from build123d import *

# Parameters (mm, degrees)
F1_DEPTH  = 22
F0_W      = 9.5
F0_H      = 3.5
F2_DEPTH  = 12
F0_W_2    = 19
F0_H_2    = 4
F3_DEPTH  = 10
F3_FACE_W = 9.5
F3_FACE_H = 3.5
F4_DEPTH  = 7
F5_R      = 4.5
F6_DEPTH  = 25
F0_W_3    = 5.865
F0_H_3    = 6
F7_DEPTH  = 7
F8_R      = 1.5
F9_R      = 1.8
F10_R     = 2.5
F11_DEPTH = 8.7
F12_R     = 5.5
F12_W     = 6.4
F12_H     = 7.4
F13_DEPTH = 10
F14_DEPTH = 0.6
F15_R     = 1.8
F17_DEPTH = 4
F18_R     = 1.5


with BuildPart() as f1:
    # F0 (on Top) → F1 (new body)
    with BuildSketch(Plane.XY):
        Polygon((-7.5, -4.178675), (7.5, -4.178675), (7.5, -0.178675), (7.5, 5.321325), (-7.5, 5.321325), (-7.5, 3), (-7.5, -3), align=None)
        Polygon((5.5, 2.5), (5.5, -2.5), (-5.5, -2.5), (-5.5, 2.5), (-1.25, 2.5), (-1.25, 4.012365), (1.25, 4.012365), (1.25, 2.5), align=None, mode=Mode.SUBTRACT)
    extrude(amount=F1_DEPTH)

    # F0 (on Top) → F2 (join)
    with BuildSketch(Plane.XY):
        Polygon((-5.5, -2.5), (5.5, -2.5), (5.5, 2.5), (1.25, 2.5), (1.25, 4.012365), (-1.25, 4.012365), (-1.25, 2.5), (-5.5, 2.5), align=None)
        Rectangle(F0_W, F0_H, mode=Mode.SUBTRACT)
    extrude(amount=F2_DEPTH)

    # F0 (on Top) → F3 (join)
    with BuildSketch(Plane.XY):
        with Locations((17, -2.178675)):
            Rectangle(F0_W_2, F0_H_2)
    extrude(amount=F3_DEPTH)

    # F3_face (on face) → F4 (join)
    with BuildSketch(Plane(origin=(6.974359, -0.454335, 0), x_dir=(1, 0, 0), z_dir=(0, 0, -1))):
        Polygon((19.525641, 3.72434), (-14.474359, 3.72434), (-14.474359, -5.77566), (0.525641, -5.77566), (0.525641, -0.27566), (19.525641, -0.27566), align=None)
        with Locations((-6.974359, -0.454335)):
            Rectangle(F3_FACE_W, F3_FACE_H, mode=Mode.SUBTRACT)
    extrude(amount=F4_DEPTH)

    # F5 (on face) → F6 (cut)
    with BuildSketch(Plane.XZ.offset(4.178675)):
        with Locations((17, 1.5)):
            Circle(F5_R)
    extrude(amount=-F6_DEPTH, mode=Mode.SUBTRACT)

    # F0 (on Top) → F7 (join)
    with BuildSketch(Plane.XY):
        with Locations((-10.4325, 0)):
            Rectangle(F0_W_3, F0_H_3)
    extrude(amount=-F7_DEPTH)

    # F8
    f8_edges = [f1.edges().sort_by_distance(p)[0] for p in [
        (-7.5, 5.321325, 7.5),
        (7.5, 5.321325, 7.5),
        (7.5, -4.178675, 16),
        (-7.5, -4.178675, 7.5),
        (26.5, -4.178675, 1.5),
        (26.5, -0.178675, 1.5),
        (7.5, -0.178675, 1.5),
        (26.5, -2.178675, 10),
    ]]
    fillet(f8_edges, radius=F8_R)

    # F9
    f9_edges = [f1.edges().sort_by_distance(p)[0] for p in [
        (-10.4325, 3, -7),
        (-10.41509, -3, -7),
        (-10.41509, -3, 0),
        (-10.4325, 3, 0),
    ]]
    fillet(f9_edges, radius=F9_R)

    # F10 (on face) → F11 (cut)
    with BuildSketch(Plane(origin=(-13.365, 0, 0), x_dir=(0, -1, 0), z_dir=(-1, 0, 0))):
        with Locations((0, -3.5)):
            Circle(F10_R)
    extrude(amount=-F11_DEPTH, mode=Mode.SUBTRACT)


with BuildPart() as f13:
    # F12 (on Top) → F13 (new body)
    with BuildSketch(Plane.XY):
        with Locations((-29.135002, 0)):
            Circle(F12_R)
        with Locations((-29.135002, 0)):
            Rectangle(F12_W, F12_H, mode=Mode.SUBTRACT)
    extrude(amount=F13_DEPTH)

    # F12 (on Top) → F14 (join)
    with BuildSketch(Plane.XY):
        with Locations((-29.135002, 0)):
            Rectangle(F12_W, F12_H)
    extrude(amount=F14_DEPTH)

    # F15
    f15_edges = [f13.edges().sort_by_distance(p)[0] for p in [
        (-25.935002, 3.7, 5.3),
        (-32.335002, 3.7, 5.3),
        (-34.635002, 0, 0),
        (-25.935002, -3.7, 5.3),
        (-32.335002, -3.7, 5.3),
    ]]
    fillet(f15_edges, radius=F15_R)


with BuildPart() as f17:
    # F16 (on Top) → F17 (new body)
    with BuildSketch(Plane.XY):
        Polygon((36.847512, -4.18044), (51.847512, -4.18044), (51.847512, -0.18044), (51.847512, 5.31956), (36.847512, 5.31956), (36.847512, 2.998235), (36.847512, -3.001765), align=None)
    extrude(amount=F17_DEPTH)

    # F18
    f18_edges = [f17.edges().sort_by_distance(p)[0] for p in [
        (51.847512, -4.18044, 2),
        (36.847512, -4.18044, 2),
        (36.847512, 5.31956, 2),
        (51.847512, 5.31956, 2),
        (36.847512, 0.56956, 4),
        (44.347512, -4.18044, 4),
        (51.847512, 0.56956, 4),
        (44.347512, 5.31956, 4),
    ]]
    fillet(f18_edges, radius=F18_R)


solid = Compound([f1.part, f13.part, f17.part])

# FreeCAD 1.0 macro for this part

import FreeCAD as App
import Part
import Sketcher


def edges_at(feature, points):
    """Names of the edges that pass closest to the given points."""
    edges = feature.Shape.Edges
    near = lambda p: min(range(len(edges)), key=lambda i: edges[i].distToShape(Part.Vertex(*p))[0])
    return sorted({f"Edge{near(p) + 1}" for p in points})


def add_polygon(sketch, points):
    """Adds a closed chain of lines whose ends are joined by coincident constraints."""
    first, n = sketch.GeometryCount, len(points)
    for a, b in zip(points, points[1:] + points[:1]):
        sketch.addGeometry(Part.LineSegment(App.Vector(*a, 0), App.Vector(*b, 0)), False)
    for i in range(n):
        sketch.addConstraint(Sketcher.Constraint("Coincident", first + i, 2, first + (i + 1) % n, 1))

doc = App.newDocument("Part")
params = doc.addObject("Spreadsheet::Sheet", "Params")
for row, (alias, value) in enumerate([
    ("sketch1_width", "15 mm"),
    ("sketch1_width2", "11 mm"),
    ("sketch1_height", "5 mm"),
    ("sketch1_width3", "2.5 mm"),
    ("sketch1_height2", "9.5 mm"),
    ("pad1_length", "22 mm"),
    ("sketch2_width", "11 mm"),
    ("sketch2_height", "5 mm"),
    ("sketch2_width2", "2.5 mm"),
    ("sketch2_width3", "9.5 mm"),
    ("sketch2_height2", "3.5 mm"),
    ("pad2_length", "12 mm"),
    ("sketch3_width", "19 mm"),
    ("sketch3_height", "4 mm"),
    ("pad3_length", "10 mm"),
    ("sketch4_width", "34 mm"),
    ("sketch4_width2", "15 mm"),
    ("sketch4_height", "4 mm"),
    ("sketch4_width3", "9.5 mm"),
    ("sketch4_height2", "3.5 mm"),
    ("pad4_length", "7 mm"),
    ("sketch5_diameter", "9 mm"),
    ("pocket1_length", "25 mm"),
    ("sketch6_height", "6 mm"),
    ("pad5_length", "7 mm"),
    ("fillet_radius", "1.5 mm"),
    ("fillet2_radius", "1.8 mm"),
    ("sketch7_diameter", "5 mm"),
    ("pocket2_length", "8.7 mm"),
    ("sketch8_diameter", "11 mm"),
    ("sketch8_width", "6.4 mm"),
    ("sketch8_height", "7.4 mm"),
    ("pad6_length", "10 mm"),
    ("sketch9_width", "6.4 mm"),
    ("sketch9_height", "7.4 mm"),
    ("pad7_length", "0.6 mm"),
    ("fillet3_radius", "1.8 mm"),
    ("sketch10_width", "15 mm"),
    ("sketch10_height", "9.5 mm"),
    ("pad8_length", "4 mm"),
    ("fillet4_radius", "1.5 mm"),
], start=1):
    params.set(f"A{row}", alias)
    params.set(f"B{row}", "=" + value)
    params.setAlias(f"B{row}", alias)

body = doc.addObject("PartDesign::Body", "Body")

sketch1 = doc.addObject("Sketcher::SketchObject", "Sketch")
body.addObject(sketch1)
sketch1.AttachmentSupport = (doc.XY_Plane, [""])
sketch1.MapMode = "FlatFace"
add_polygon(sketch1, [(-7.5, -4.2), (7.5, -4.2), (7.5, 5.3), (-7.5, 5.3)])
add_polygon(sketch1, [(1.2, 2.5), (5.5, 2.5), (5.5, -2.5), (-5.5, -2.5), (-5.5, 2.5), (-1.2, 2.5), (-1.2, 4), (1.2, 4)])
sketch1.addConstraint([
    Sketcher.Constraint("Horizontal", 0),
    Sketcher.Constraint("Vertical", 1),
    Sketcher.Constraint("Horizontal", 2),
    Sketcher.Constraint("Vertical", 3),
    Sketcher.Constraint("Horizontal", 4),
    Sketcher.Constraint("Vertical", 5),
    Sketcher.Constraint("Horizontal", 6),
    Sketcher.Constraint("Vertical", 7),
    Sketcher.Constraint("Horizontal", 8),
    Sketcher.Constraint("Vertical", 9),
    Sketcher.Constraint("Horizontal", 10),
    Sketcher.Constraint("Vertical", 11),
    Sketcher.Constraint("Symmetric", 4, 2, 6, 2, -1, 1),
    Sketcher.Constraint("Symmetric", 8, 2, 11, 2, -2),
    Sketcher.Constraint("DistanceX", 0, 1, 0, 2, 15.0),
    Sketcher.Constraint("DistanceX", 6, 2, 6, 1, 11.0),
    Sketcher.Constraint("DistanceY", 5, 2, 5, 1, 5.0),
    Sketcher.Constraint("DistanceX", 10, 1, 10, 2, 2.5),
    Sketcher.Constraint("DistanceY", 1, 1, 1, 2, 9.5),
    Sketcher.Constraint("DistanceX", 4, 2, 1, 2, 2.0),
    Sketcher.Constraint("DistanceY", 9, 1, 9, 2, 1.512365),
    Sketcher.Constraint("DistanceY", 9, 2, 2, 2, 1.30896),
])
sketch1.setExpression("Constraints[26]", "Params.sketch1_width")
sketch1.setExpression("Constraints[27]", "Params.sketch1_width2")
sketch1.setExpression("Constraints[28]", "Params.sketch1_height")
sketch1.setExpression("Constraints[29]", "Params.sketch1_width3")
sketch1.setExpression("Constraints[30]", "Params.sketch1_height2")
pad1 = doc.addObject("PartDesign::Pad", "Pad")
body.addObject(pad1)
pad1.Profile = sketch1
pad1.setExpression("Length", "Params.pad1_length")

sketch2 = doc.addObject("Sketcher::SketchObject", "Sketch001")
body.addObject(sketch2)
sketch2.AttachmentSupport = (doc.XY_Plane, [""])
sketch2.MapMode = "FlatFace"
add_polygon(sketch2, [(-5.5, -2.5), (5.5, -2.5), (5.5, 2.5), (1.2, 2.5), (1.2, 4), (-1.2, 4), (-1.2, 2.5), (-5.5, 2.5)])
add_polygon(sketch2, [(4.8, -1.8), (-4.8, -1.8), (-4.8, 1.8), (4.8, 1.8)])
sketch2.addConstraint([
    Sketcher.Constraint("Horizontal", 0),
    Sketcher.Constraint("Vertical", 1),
    Sketcher.Constraint("Horizontal", 2),
    Sketcher.Constraint("Vertical", 3),
    Sketcher.Constraint("Horizontal", 4),
    Sketcher.Constraint("Vertical", 5),
    Sketcher.Constraint("Horizontal", 6),
    Sketcher.Constraint("Vertical", 7),
    Sketcher.Constraint("Horizontal", 8),
    Sketcher.Constraint("Vertical", 9),
    Sketcher.Constraint("Horizontal", 10),
    Sketcher.Constraint("Vertical", 11),
    Sketcher.Constraint("Symmetric", 0, 2, 6, 2, -1, 1),
    Sketcher.Constraint("Symmetric", 8, 2, 10, 2, -1, 1),
    Sketcher.Constraint("Symmetric", 2, 2, 5, 2, -2),
    Sketcher.Constraint("DistanceX", 0, 1, 0, 2, 11.0),
    Sketcher.Constraint("DistanceY", 1, 1, 1, 2, 5.0),
    Sketcher.Constraint("DistanceX", 4, 2, 4, 1, 2.5),
    Sketcher.Constraint("DistanceX", 8, 2, 8, 1, 9.5),
    Sketcher.Constraint("DistanceY", 9, 1, 9, 2, 3.5),
    Sketcher.Constraint("DistanceY", 3, 1, 3, 2, 1.512365),
])
sketch2.setExpression("Constraints[27]", "Params.sketch2_width")
sketch2.setExpression("Constraints[28]", "Params.sketch2_height")
sketch2.setExpression("Constraints[29]", "Params.sketch2_width2")
sketch2.setExpression("Constraints[30]", "Params.sketch2_width3")
sketch2.setExpression("Constraints[31]", "Params.sketch2_height2")
pad2 = doc.addObject("PartDesign::Pad", "Pad001")
body.addObject(pad2)
pad2.Profile = sketch2
pad2.setExpression("Length", "Params.pad2_length")

sketch3 = doc.addObject("Sketcher::SketchObject", "Sketch002")
body.addObject(sketch3)
sketch3.AttachmentSupport = (doc.XY_Plane, [""])
sketch3.MapMode = "FlatFace"
add_polygon(sketch3, [(7.5, -0.2), (7.5, -4.2), (26.5, -4.2), (26.5, -0.2)])
sketch3.addConstraint([
    Sketcher.Constraint("Vertical", 0),
    Sketcher.Constraint("Horizontal", 1),
    Sketcher.Constraint("Vertical", 2),
    Sketcher.Constraint("Horizontal", 3),
    Sketcher.Constraint("DistanceX", 1, 1, 1, 2, 19.0),
    Sketcher.Constraint("DistanceY", 0, 2, 0, 1, 4.0),
    Sketcher.Constraint("DistanceX", -1, 1, 0, 2, 7.5),
    Sketcher.Constraint("DistanceY", 0, 2, -1, 1, 4.178675),
])
sketch3.setExpression("Constraints[8]", "Params.sketch3_width")
sketch3.setExpression("Constraints[9]", "Params.sketch3_height")
pad3 = doc.addObject("PartDesign::Pad", "Pad002")
body.addObject(pad3)
pad3.Profile = sketch3
pad3.setExpression("Length", "Params.pad3_length")

sketch4 = doc.addObject("Sketcher::SketchObject", "Sketch003")
body.addObject(sketch4)
sketch4.AttachmentSupport = (doc.XY_Plane, [""])
sketch4.MapMode = "FlatFace"
add_polygon(sketch4, [(26.5, -4.2), (-7.5, -4.2), (-7.5, 5.3), (7.5, 5.3), (7.5, -0.2), (26.5, -0.2)])
add_polygon(sketch4, [(4.8, 1.8), (-4.8, 1.8), (-4.8, -1.8), (4.8, -1.8)])
sketch4.addConstraint([
    Sketcher.Constraint("Horizontal", 0),
    Sketcher.Constraint("Vertical", 1),
    Sketcher.Constraint("Horizontal", 2),
    Sketcher.Constraint("Vertical", 3),
    Sketcher.Constraint("Horizontal", 4),
    Sketcher.Constraint("Vertical", 5),
    Sketcher.Constraint("Horizontal", 6),
    Sketcher.Constraint("Vertical", 7),
    Sketcher.Constraint("Horizontal", 8),
    Sketcher.Constraint("Vertical", 9),
    Sketcher.Constraint("Symmetric", 6, 2, 8, 2, -1, 1),
    Sketcher.Constraint("Equal", 8, 1),
    Sketcher.Constraint("DistanceX", 0, 2, 0, 1, 34.0),
    Sketcher.Constraint("DistanceX", 2, 1, 2, 2, 15.0),
    Sketcher.Constraint("DistanceY", 5, 2, 5, 1, 4.0),
    Sketcher.Constraint("DistanceX", 6, 2, 6, 1, 9.5),
    Sketcher.Constraint("DistanceY", 7, 2, 7, 1, 3.5),
    Sketcher.Constraint("DistanceX", 0, 2, -1, 1, 7.5),
    Sketcher.Constraint("DistanceY", 0, 2, -1, 1, 4.178675),
])
sketch4.setExpression("Constraints[22]", "Params.sketch4_width")
sketch4.setExpression("Constraints[23]", "Params.sketch4_width2")
sketch4.setExpression("Constraints[24]", "Params.sketch4_height")
sketch4.setExpression("Constraints[25]", "Params.sketch4_width3")
sketch4.setExpression("Constraints[26]", "Params.sketch4_height2")
pad4 = doc.addObject("PartDesign::Pad", "Pad003")
body.addObject(pad4)
pad4.Profile = sketch4
pad4.setExpression("Length", "Params.pad4_length")
pad4.Reversed = True

sketch5 = doc.addObject("Sketcher::SketchObject", "Sketch004")
body.addObject(sketch5)
sketch5.AttachmentSupport = (doc.XZ_Plane, [""])
sketch5.MapMode = "FlatFace"
sketch5.AttachmentOffset = App.Placement(App.Vector(0, 0, 4.178675), App.Rotation())
sketch5.addGeometry(Part.Circle(App.Vector(17, 1.5, 0), App.Vector(0, 0, 1), 4.5), False)
sketch5.addConstraint([
    Sketcher.Constraint("Diameter", 0, 9.0),
    Sketcher.Constraint("DistanceX", -1, 1, 0, 3, 17.0),
    Sketcher.Constraint("DistanceY", -1, 1, 0, 3, 1.5),
])
sketch5.setExpression("Constraints[0]", "Params.sketch5_diameter")
pocket1 = doc.addObject("PartDesign::Pocket", "Pocket")
body.addObject(pocket1)
pocket1.Profile = sketch5
pocket1.setExpression("Length", "Params.pocket1_length")

sketch6 = doc.addObject("Sketcher::SketchObject", "Sketch005")
body.addObject(sketch6)
sketch6.AttachmentSupport = (doc.XY_Plane, [""])
sketch6.MapMode = "FlatFace"
add_polygon(sketch6, [(-13, 3), (-13, -3), (-8, -3), (-8, 3)])
sketch6.addConstraint([
    Sketcher.Constraint("Vertical", 0),
    Sketcher.Constraint("Horizontal", 1),
    Sketcher.Constraint("Vertical", 2),
    Sketcher.Constraint("Horizontal", 3),
    Sketcher.Constraint("DistanceY", 0, 2, 0, 1, 6.0),
    Sketcher.Constraint("DistanceY", 0, 2, -1, 1, 3.0),
    Sketcher.Constraint("DistanceX", 1, 2, -1, 1, 7.5),
    Sketcher.Constraint("DistanceX", 1, 1, 1, 2, 5.865),
])
sketch6.setExpression("Constraints[8]", "Params.sketch6_height")
pad5 = doc.addObject("PartDesign::Pad", "Pad004")
body.addObject(pad5)
pad5.Profile = sketch6
pad5.setExpression("Length", "Params.pad5_length")
pad5.Reversed = True
doc.recompute()

fillet = doc.addObject("PartDesign::Fillet", "Fillet")
body.addObject(fillet)
fillet.Base = (pad5, edges_at(pad5, [
    (-7.5, 5.321, 7.5),
    (7.5, 5.321, 7.5),
    (7.5, -4.179, 16),
    (-7.5, -4.179, 7.5),
    (26.5, -4.179, 1.5),
    (26.5, -0.179, 1.5),
    (7.5, -0.179, 1.5),
    (26.5, -2.179, 10),
]))
fillet.setExpression("Radius", "Params.fillet_radius")
doc.recompute()

fillet2 = doc.addObject("PartDesign::Fillet", "Fillet001")
body.addObject(fillet2)
fillet2.Base = (fillet, edges_at(fillet, [
    (-10.432, 3, -7),
    (-10.415, -3, -7),
    (-10.415, -3, 0),
    (-10.432, 3, 0),
]))
fillet2.setExpression("Radius", "Params.fillet2_radius")

sketch7 = doc.addObject("Sketcher::SketchObject", "Sketch006")
body.addObject(sketch7)
sketch7.AttachmentSupport = (doc.YZ_Plane, [""])
sketch7.MapMode = "FlatFace"
sketch7.AttachmentOffset = App.Placement(App.Vector(0, 0, -13.365), App.Rotation())
sketch7.addGeometry(Part.Circle(App.Vector(0, -3.5, 0), App.Vector(0, 0, 1), 2.5), False)
sketch7.addConstraint([
    Sketcher.Constraint("PointOnObject", 0, 3, -2),
    Sketcher.Constraint("Diameter", 0, 5.0),
    Sketcher.Constraint("DistanceY", 0, 3, -1, 1, 3.5),
])
sketch7.setExpression("Constraints[1]", "Params.sketch7_diameter")
pocket2 = doc.addObject("PartDesign::Pocket", "Pocket001")
body.addObject(pocket2)
pocket2.Profile = sketch7
pocket2.setExpression("Length", "Params.pocket2_length")
pocket2.Reversed = True
body2 = doc.addObject("PartDesign::Body", "Body001")

sketch8 = doc.addObject("Sketcher::SketchObject", "Sketch007")
body2.addObject(sketch8)
sketch8.AttachmentSupport = (doc.getObject("XY_Plane001"), [""])
sketch8.MapMode = "FlatFace"
sketch8.addGeometry(Part.Circle(App.Vector(-29, 0, 0), App.Vector(0, 0, 1), 6), False)
add_polygon(sketch8, [(-26, -4), (-32, -4), (-32, 4), (-26, 4)])
sketch8.addConstraint([
    Sketcher.Constraint("Horizontal", 1),
    Sketcher.Constraint("Vertical", 2),
    Sketcher.Constraint("Horizontal", 3),
    Sketcher.Constraint("Vertical", 4),
    Sketcher.Constraint("PointOnObject", 0, 3, -1),
    Sketcher.Constraint("Diameter", 0, 11.0),
    Sketcher.Constraint("DistanceX", 1, 2, 1, 1, 6.4),
    Sketcher.Constraint("DistanceY", 2, 1, 2, 2, 7.4),
    Sketcher.Constraint("DistanceY", 1, 2, -1, 1, 3.7),
    Sketcher.Constraint("DistanceX", 1, 2, 0, 3, 3.2),
    Sketcher.Constraint("DistanceX", 0, 3, -1, 1, 29.135002),
])
sketch8.setExpression("Constraints[9]", "Params.sketch8_diameter")
sketch8.setExpression("Constraints[10]", "Params.sketch8_width")
sketch8.setExpression("Constraints[11]", "Params.sketch8_height")
pad6 = doc.addObject("PartDesign::Pad", "Pad005")
body2.addObject(pad6)
pad6.Profile = sketch8
pad6.setExpression("Length", "Params.pad6_length")

sketch9 = doc.addObject("Sketcher::SketchObject", "Sketch008")
body2.addObject(sketch9)
sketch9.AttachmentSupport = (doc.getObject("XY_Plane001"), [""])
sketch9.MapMode = "FlatFace"
add_polygon(sketch9, [(-32, 4), (-32, -4), (-26, -4), (-26, 4)])
sketch9.addConstraint([
    Sketcher.Constraint("Vertical", 0),
    Sketcher.Constraint("Horizontal", 1),
    Sketcher.Constraint("Vertical", 2),
    Sketcher.Constraint("Horizontal", 3),
    Sketcher.Constraint("DistanceX", 1, 1, 1, 2, 6.4),
    Sketcher.Constraint("DistanceY", 0, 2, 0, 1, 7.4),
    Sketcher.Constraint("DistanceY", 0, 2, -1, 1, 3.7),
    Sketcher.Constraint("DistanceX", 0, 2, -1, 1, 32.335002),
])
sketch9.setExpression("Constraints[8]", "Params.sketch9_width")
sketch9.setExpression("Constraints[9]", "Params.sketch9_height")
pad7 = doc.addObject("PartDesign::Pad", "Pad006")
body2.addObject(pad7)
pad7.Profile = sketch9
pad7.setExpression("Length", "Params.pad7_length")
doc.recompute()

fillet3 = doc.addObject("PartDesign::Fillet", "Fillet002")
body2.addObject(fillet3)
fillet3.Base = (pad7, edges_at(pad7, [
    (-25.935, 3.7, 5.3),
    (-32.335, 3.7, 5.3),
    (-34.635, 0, 0),
    (-25.935, -3.7, 5.3),
    (-32.335, -3.7, 5.3),
]))
fillet3.setExpression("Radius", "Params.fillet3_radius")
body3 = doc.addObject("PartDesign::Body", "Body002")

sketch10 = doc.addObject("Sketcher::SketchObject", "Sketch009")
body3.addObject(sketch10)
sketch10.AttachmentSupport = (doc.getObject("XY_Plane002"), [""])
sketch10.MapMode = "FlatFace"
add_polygon(sketch10, [(37, -4), (52, -4), (52, 5), (37, 5)])
sketch10.addConstraint([
    Sketcher.Constraint("Horizontal", 0),
    Sketcher.Constraint("Vertical", 1),
    Sketcher.Constraint("Horizontal", 2),
    Sketcher.Constraint("Vertical", 3),
    Sketcher.Constraint("DistanceX", 0, 1, 0, 2, 15.0),
    Sketcher.Constraint("DistanceY", 1, 1, 1, 2, 9.5),
    Sketcher.Constraint("DistanceY", 0, 2, -1, 1, 4.18044),
    Sketcher.Constraint("DistanceX", -1, 1, 0, 2, 51.847512),
])
sketch10.setExpression("Constraints[8]", "Params.sketch10_width")
sketch10.setExpression("Constraints[9]", "Params.sketch10_height")
pad8 = doc.addObject("PartDesign::Pad", "Pad007")
body3.addObject(pad8)
pad8.Profile = sketch10
pad8.setExpression("Length", "Params.pad8_length")
doc.recompute()

fillet4 = doc.addObject("PartDesign::Fillet", "Fillet003")
body3.addObject(fillet4)
fillet4.Base = (pad8, edges_at(pad8, [
    (51.848, -4.18, 2),
    (36.848, -4.18, 2),
    (36.848, 5.32, 2),
    (51.848, 5.32, 2),
    (36.848, 0.57, 4),
    (44.348, -4.18, 4),
    (51.848, 0.57, 4),
    (44.348, 5.32, 4),
]))
fillet4.setExpression("Radius", "Params.fillet4_radius")

doc.recompute()
